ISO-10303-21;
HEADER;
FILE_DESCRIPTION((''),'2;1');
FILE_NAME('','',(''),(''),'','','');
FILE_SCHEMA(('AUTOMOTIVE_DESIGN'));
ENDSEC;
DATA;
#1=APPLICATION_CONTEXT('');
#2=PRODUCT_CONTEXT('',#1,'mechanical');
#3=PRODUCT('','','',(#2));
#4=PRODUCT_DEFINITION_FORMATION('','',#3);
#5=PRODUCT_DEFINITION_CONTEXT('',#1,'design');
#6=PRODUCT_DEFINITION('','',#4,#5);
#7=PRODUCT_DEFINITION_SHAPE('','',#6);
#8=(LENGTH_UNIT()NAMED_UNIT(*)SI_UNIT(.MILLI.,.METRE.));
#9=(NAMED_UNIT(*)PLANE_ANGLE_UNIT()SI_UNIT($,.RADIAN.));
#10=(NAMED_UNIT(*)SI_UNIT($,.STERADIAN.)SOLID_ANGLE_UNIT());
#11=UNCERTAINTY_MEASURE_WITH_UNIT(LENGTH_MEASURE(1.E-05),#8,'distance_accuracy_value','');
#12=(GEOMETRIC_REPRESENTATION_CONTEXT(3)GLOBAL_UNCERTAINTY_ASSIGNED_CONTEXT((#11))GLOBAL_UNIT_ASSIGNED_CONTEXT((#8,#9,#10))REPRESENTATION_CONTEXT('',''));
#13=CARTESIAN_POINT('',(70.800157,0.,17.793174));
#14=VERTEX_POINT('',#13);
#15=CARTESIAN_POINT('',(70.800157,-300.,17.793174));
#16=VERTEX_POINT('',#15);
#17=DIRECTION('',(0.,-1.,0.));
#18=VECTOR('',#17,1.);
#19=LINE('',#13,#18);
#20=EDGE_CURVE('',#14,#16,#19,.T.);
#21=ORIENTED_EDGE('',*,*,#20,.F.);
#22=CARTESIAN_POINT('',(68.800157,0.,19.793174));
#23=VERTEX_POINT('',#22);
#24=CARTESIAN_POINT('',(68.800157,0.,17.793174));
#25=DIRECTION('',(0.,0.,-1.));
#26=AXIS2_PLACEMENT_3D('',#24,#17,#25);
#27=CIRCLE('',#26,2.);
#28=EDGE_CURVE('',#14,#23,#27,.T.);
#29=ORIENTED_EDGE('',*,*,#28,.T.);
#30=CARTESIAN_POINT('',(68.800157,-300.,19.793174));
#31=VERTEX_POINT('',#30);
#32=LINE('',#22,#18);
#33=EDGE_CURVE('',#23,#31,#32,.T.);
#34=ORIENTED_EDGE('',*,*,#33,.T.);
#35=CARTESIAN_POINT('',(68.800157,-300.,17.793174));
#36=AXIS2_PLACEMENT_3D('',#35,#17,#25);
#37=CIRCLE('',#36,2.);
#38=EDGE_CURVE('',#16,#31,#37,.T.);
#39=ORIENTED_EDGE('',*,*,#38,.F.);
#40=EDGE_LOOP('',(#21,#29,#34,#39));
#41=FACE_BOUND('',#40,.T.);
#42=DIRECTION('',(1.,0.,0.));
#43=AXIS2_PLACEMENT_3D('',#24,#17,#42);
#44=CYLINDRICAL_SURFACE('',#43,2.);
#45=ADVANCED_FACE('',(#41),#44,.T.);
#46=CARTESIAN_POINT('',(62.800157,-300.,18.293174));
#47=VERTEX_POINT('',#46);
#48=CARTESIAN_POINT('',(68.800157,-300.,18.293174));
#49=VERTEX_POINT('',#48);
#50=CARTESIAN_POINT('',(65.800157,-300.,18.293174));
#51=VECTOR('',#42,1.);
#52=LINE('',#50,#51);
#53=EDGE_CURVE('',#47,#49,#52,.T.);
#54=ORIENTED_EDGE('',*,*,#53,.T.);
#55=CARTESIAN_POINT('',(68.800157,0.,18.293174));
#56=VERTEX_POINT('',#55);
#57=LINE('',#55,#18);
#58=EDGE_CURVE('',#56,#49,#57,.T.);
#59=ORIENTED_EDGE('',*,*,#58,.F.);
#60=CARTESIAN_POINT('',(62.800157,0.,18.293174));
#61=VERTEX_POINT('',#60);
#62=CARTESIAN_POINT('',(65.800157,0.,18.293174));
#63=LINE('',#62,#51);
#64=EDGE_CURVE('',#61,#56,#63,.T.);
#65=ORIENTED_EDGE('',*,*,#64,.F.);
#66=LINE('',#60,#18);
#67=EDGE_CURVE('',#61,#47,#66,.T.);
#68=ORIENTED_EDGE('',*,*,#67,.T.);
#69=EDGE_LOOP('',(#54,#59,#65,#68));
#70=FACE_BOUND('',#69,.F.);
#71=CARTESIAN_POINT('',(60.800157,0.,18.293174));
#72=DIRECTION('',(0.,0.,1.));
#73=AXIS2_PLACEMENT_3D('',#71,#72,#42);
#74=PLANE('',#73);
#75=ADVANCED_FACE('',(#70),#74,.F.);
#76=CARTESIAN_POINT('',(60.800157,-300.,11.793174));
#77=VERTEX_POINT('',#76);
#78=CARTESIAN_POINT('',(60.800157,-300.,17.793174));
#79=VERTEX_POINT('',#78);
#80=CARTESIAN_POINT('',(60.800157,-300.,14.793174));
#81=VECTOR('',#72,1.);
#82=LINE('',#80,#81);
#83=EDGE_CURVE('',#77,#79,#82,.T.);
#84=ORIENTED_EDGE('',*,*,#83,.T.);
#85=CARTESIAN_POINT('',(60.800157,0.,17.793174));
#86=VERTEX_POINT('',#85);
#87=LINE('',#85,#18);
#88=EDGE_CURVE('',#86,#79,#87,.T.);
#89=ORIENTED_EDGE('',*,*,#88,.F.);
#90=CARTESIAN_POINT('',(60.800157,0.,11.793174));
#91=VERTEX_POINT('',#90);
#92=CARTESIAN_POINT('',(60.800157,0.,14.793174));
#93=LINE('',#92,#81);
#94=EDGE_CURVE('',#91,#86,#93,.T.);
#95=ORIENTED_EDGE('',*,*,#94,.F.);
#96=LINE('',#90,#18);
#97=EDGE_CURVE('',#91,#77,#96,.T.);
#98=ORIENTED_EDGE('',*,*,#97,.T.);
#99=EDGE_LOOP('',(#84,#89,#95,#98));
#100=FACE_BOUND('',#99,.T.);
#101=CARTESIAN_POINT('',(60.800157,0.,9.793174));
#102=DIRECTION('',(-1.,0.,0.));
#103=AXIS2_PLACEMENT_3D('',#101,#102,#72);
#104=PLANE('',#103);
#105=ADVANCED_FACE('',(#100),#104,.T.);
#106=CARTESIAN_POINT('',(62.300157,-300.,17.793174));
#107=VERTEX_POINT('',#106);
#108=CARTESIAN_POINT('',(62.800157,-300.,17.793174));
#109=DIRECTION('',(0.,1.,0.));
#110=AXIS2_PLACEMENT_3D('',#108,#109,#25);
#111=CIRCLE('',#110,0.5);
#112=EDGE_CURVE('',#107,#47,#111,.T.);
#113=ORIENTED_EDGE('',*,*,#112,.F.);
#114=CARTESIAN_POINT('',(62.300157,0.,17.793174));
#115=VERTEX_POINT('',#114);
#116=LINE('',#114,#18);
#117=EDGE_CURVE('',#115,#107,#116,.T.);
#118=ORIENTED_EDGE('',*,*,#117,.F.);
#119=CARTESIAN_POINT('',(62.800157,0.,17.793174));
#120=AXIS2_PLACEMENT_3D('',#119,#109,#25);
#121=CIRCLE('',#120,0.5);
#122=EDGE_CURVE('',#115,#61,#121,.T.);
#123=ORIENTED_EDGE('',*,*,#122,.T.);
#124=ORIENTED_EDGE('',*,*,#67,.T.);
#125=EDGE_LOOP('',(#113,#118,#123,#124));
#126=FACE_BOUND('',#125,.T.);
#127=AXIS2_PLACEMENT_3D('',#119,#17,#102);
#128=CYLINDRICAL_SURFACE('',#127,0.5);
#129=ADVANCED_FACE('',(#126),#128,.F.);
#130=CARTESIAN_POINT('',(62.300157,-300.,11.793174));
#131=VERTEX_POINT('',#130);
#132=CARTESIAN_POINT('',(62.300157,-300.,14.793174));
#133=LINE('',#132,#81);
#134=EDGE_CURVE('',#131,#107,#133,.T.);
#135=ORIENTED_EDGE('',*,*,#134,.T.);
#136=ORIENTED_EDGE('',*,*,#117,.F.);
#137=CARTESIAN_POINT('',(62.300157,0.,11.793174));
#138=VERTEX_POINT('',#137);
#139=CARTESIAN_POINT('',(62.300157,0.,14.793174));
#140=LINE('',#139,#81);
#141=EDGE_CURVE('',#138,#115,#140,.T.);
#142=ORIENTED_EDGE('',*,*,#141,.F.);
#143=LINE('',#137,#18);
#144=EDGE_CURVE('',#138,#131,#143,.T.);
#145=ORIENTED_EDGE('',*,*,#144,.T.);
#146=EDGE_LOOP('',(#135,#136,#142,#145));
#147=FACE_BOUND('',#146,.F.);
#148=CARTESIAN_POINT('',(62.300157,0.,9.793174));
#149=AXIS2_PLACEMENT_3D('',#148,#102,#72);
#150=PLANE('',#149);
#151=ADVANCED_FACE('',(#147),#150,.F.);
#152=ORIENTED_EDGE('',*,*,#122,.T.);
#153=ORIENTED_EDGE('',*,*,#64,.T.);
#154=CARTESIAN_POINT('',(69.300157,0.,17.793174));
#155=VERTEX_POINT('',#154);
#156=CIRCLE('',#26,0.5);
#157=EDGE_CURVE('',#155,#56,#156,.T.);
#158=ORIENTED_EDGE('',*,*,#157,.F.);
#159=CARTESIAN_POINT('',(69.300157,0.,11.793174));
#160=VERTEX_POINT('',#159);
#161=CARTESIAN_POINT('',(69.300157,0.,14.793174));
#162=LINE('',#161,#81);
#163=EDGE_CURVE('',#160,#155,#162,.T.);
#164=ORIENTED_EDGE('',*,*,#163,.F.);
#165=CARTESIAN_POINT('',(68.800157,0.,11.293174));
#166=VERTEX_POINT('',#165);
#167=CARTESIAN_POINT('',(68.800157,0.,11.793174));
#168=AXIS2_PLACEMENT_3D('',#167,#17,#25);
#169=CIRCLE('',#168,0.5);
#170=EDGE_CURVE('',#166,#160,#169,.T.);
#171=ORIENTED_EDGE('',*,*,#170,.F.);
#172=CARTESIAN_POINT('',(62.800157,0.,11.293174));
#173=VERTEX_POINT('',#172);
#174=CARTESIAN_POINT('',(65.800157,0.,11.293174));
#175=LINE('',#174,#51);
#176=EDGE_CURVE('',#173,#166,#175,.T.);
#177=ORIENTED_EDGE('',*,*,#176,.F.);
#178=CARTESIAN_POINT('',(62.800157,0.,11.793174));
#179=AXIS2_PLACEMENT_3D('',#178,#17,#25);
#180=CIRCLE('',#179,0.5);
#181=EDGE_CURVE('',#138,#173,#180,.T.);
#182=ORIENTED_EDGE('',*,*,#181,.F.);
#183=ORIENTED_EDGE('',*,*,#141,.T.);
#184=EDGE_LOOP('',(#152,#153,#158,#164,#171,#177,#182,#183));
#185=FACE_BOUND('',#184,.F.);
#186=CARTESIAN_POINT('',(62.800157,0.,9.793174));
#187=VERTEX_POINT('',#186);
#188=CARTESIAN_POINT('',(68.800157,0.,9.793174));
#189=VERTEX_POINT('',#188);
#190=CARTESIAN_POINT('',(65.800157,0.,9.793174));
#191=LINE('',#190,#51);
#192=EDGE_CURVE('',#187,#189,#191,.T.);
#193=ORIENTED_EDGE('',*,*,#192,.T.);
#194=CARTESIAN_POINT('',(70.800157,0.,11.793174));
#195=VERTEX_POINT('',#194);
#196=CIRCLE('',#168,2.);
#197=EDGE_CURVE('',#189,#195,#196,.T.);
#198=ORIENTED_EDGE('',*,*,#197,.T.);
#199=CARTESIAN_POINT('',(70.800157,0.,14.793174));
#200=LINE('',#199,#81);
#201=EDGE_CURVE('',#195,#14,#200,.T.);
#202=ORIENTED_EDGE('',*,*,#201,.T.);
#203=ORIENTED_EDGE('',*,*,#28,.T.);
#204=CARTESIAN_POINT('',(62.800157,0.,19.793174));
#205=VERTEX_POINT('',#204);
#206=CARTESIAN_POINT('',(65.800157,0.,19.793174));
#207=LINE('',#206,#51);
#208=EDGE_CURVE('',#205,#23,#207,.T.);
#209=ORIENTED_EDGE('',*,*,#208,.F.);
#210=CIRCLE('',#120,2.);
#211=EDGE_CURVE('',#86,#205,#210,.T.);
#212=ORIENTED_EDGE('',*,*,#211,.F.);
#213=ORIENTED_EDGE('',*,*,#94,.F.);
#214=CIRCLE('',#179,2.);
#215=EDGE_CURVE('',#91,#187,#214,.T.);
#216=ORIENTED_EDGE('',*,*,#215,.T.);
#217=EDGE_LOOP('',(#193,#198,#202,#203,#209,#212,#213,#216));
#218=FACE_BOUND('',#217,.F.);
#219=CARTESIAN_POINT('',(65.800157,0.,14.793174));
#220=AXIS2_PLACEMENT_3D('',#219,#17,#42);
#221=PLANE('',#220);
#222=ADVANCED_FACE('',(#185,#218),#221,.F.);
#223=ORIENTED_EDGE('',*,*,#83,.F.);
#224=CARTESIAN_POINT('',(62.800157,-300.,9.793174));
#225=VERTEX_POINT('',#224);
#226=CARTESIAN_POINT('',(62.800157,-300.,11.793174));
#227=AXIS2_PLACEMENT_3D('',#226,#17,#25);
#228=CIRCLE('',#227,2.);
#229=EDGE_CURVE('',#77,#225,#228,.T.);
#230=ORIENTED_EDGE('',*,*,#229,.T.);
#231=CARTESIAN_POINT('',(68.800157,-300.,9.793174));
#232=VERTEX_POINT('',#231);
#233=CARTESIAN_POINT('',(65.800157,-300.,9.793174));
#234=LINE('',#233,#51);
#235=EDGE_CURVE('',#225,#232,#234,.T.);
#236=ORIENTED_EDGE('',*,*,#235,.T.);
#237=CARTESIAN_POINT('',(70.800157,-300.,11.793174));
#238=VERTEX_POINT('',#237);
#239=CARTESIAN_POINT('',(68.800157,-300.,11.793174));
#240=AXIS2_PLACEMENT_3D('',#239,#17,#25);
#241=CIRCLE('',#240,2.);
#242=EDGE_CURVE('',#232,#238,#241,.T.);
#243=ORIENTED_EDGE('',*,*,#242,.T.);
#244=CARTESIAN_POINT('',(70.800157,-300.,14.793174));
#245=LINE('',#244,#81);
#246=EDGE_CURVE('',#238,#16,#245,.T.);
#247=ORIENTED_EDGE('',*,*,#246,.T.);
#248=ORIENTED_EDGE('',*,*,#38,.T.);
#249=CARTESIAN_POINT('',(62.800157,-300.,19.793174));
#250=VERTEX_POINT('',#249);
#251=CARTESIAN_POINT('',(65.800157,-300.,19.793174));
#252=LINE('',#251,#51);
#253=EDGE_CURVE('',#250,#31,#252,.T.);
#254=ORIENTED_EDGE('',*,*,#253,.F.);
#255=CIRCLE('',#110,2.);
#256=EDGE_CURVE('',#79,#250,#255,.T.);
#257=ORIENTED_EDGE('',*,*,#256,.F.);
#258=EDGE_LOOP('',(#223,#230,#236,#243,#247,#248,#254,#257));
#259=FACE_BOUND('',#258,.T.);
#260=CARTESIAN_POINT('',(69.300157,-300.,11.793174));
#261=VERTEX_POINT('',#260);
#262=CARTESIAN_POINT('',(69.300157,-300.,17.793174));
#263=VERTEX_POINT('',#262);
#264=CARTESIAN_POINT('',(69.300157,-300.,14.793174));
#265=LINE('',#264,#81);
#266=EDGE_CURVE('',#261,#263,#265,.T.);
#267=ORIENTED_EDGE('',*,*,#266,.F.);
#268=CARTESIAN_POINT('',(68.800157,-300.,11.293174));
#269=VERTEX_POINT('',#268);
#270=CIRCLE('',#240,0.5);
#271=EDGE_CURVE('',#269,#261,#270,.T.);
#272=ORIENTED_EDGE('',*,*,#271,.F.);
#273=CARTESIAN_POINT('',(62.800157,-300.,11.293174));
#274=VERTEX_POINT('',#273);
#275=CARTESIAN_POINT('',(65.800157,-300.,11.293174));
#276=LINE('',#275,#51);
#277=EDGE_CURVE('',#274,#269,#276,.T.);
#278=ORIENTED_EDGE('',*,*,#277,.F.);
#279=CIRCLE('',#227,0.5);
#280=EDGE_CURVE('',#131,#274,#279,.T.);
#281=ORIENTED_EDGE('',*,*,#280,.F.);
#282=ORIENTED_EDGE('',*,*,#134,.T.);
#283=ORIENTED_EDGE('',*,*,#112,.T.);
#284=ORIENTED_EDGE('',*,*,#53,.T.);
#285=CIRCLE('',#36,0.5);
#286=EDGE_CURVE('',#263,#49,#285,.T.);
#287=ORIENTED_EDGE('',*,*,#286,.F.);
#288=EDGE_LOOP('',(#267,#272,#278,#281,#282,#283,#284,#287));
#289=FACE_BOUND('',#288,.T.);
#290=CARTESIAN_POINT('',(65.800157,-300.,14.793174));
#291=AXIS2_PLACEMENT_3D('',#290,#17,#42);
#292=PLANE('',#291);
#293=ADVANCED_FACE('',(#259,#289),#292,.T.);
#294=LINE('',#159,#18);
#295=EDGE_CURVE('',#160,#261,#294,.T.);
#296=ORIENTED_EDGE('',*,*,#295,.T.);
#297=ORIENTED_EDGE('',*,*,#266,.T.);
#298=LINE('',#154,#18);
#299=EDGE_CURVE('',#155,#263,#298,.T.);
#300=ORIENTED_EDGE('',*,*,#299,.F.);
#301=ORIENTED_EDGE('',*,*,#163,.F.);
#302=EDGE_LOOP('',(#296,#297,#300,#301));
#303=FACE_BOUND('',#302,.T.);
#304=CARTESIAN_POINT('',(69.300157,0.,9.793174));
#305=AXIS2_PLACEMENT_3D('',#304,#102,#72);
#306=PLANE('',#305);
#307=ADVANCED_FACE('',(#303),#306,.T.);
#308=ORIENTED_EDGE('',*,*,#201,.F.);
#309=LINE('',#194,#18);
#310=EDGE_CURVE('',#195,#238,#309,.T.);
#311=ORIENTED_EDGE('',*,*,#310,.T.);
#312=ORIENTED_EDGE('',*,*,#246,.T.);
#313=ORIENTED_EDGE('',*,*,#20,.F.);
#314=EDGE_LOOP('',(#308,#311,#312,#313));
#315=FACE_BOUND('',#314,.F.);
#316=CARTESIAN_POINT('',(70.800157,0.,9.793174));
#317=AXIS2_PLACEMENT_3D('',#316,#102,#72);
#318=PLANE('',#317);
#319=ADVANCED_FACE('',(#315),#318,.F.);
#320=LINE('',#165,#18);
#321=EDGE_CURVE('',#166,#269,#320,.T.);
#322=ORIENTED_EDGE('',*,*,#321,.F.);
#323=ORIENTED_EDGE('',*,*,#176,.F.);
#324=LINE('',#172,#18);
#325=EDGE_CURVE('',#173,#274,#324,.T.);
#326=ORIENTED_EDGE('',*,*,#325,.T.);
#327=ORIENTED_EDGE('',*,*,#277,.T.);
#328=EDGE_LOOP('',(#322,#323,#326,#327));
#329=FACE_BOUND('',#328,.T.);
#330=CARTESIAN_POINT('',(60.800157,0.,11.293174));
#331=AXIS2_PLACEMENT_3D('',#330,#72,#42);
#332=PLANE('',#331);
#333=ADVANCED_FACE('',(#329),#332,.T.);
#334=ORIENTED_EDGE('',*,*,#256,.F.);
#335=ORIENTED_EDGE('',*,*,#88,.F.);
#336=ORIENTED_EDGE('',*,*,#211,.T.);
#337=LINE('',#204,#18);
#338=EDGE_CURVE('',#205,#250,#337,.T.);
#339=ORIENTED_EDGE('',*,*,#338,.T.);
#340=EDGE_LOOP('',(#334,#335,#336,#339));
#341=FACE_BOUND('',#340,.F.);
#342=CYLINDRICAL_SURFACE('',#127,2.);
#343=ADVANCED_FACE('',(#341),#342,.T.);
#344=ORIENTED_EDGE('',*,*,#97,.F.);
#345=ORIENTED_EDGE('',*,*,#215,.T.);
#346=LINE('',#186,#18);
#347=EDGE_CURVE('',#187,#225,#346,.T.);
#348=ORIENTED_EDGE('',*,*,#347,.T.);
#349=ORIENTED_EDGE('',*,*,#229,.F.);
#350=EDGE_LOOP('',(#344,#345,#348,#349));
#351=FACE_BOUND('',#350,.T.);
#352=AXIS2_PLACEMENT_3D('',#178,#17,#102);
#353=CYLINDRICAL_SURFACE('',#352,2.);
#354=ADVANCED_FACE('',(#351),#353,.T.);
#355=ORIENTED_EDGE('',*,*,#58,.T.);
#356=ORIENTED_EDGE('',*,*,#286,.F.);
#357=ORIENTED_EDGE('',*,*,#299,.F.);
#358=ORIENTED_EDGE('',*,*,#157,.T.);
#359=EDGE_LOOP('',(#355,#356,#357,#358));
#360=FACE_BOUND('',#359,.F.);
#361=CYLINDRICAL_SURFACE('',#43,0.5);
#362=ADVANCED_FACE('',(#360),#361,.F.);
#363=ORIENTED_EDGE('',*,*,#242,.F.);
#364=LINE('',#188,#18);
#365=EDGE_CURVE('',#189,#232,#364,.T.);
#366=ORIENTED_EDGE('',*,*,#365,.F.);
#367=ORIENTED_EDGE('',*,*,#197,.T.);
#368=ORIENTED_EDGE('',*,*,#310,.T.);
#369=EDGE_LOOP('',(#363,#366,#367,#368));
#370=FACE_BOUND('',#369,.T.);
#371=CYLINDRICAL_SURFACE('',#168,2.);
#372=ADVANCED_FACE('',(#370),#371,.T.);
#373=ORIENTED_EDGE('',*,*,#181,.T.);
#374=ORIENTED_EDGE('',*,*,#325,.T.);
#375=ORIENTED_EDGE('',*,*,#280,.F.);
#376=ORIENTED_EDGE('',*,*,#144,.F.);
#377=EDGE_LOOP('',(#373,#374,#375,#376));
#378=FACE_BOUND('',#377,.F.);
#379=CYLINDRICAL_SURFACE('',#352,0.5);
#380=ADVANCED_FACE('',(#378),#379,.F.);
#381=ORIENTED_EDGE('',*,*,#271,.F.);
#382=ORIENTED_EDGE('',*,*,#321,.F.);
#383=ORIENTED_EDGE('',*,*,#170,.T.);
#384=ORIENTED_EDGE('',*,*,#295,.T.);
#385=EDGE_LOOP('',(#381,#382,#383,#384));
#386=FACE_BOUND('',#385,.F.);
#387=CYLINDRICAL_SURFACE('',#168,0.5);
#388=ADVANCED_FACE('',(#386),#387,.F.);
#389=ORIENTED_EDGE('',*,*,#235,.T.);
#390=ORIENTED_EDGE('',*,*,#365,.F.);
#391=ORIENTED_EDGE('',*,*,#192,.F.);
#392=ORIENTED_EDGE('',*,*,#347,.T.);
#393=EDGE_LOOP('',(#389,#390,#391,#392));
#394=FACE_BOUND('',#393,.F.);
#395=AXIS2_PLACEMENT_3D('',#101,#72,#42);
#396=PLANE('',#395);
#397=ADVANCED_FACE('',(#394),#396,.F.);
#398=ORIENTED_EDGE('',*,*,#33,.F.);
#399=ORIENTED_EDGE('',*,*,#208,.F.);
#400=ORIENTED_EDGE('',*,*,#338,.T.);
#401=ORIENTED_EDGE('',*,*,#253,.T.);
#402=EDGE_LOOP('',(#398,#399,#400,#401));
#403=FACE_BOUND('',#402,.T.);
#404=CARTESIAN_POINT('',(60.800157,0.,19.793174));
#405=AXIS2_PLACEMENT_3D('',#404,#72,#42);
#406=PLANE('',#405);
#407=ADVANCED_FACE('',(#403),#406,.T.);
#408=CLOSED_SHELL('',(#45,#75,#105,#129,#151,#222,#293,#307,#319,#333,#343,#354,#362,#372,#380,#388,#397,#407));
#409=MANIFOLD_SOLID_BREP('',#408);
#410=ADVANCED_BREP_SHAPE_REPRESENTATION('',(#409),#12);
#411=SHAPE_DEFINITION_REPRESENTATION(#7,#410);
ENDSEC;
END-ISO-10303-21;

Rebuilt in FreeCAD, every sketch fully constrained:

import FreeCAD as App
import Part
import Sketcher
Q = App.Units.Quantity


def edges_at(feature, points):
    """Names of the edges that pass closest to the given points."""
    edges = feature.Shape.Edges
    near = lambda p: min(range(len(edges)), key=lambda i: edges[i].distToShape(Part.Vertex(*p))[0])
    return sorted({f"Edge{near(p) + 1}" for p in points})


def faces_at(feature, points):
    """Names of the faces that lie closest to the given points."""
    faces = feature.Shape.Faces
    near = lambda p: min(range(len(faces)), key=lambda i: faces[i].distToShape(Part.Vertex(*p))[0])
    return sorted({f"Face{near(p) + 1}" for p in points})


def add_polygon(sketch, points):
    """Adds a closed chain of lines whose ends are joined by coincident constraints."""
    first, n = sketch.GeometryCount, len(points)
    for a, b in zip(points, points[1:] + points[:1]):
        sketch.addGeometry(Part.LineSegment(App.Vector(*a, 0), App.Vector(*b, 0)), False)
    for i in range(n):
        sketch.addConstraint(Sketcher.Constraint("Coincident", first + i, 2, first + (i + 1) % n, 1))

doc = App.newDocument("Part")
params = doc.addObject("Spreadsheet::Sheet", "Params")
for row, (alias, value) in enumerate([
    ("sketch1_width", "10 mm"),
    ("pad1_length", "300 mm"),
    ("fillet_radius", "2 mm"),
    ("thickness_wall", "1.5 mm"),
], start=1):
    params.set(f"A{row}", alias)
    params.set(f"B{row}", "=" + value)
    params.setAlias(f"B{row}", alias)

body = doc.addObject("PartDesign::Body", "Body")

# Sketch on XZ plane
sketch1 = doc.addObject("Sketcher::SketchObject", "Sketch")
body.addObject(sketch1)
sketch1.AttachmentSupport = (doc.XZ_Plane, [""])
sketch1.MapMode = "FlatFace"
add_polygon(sketch1, [(60.800157, 19.793174), (60.800157, 9.793174), (70.800157, 9.793174), (70.800157, 19.793174)])  # lines 0-3
sketch1.addConstraint(Sketcher.Constraint("Vertical", 0))
sketch1.addConstraint(Sketcher.Constraint("Horizontal", 1))
sketch1.addConstraint(Sketcher.Constraint("Vertical", 2))
sketch1.addConstraint(Sketcher.Constraint("Horizontal", 3))
sketch1.addConstraint(Sketcher.Constraint("Equal", 3, 0))
sketch1.addConstraint(Sketcher.Constraint("DistanceX", 1, 1, 1, 2, Q("10 mm")))
sketch1.addConstraint(Sketcher.Constraint("DistanceX", -1, 1, 0, 2, Q("60.800157 mm")))
sketch1.addConstraint(Sketcher.Constraint("DistanceY", -1, 1, 0, 2, Q("9.793174 mm")))
sketch1.setExpression("Constraints[9]", "Params.sketch1_width")
pad1 = doc.addObject("PartDesign::Pad", "Pad")
body.addObject(pad1)
pad1.Profile = sketch1
pad1.setExpression("Length", "Params.pad1_length")
doc.recompute()

fillet = doc.addObject("PartDesign::Fillet", "Fillet")
body.addObject(fillet)
fillet.Base = (pad1, edges_at(pad1, [
    (70.8, -150, 19.793),
    (60.8, -150, 19.793),
    (70.8, -150, 9.793),
    (60.8, -150, 9.793),
]))
fillet.setExpression("Radius", "Params.fillet_radius")
doc.recompute()

thickness = doc.addObject("PartDesign::Thickness", "Thickness")
body.addObject(thickness)
thickness.Base = (fillet, faces_at(fillet, [(65.8, -300, 14.793), (65.8, 0, 14.793)]))
thickness.setExpression("Value", "Params.thickness_wall")
thickness.Reversed = True
thickness.Join = "Arc"

doc.recompute()
